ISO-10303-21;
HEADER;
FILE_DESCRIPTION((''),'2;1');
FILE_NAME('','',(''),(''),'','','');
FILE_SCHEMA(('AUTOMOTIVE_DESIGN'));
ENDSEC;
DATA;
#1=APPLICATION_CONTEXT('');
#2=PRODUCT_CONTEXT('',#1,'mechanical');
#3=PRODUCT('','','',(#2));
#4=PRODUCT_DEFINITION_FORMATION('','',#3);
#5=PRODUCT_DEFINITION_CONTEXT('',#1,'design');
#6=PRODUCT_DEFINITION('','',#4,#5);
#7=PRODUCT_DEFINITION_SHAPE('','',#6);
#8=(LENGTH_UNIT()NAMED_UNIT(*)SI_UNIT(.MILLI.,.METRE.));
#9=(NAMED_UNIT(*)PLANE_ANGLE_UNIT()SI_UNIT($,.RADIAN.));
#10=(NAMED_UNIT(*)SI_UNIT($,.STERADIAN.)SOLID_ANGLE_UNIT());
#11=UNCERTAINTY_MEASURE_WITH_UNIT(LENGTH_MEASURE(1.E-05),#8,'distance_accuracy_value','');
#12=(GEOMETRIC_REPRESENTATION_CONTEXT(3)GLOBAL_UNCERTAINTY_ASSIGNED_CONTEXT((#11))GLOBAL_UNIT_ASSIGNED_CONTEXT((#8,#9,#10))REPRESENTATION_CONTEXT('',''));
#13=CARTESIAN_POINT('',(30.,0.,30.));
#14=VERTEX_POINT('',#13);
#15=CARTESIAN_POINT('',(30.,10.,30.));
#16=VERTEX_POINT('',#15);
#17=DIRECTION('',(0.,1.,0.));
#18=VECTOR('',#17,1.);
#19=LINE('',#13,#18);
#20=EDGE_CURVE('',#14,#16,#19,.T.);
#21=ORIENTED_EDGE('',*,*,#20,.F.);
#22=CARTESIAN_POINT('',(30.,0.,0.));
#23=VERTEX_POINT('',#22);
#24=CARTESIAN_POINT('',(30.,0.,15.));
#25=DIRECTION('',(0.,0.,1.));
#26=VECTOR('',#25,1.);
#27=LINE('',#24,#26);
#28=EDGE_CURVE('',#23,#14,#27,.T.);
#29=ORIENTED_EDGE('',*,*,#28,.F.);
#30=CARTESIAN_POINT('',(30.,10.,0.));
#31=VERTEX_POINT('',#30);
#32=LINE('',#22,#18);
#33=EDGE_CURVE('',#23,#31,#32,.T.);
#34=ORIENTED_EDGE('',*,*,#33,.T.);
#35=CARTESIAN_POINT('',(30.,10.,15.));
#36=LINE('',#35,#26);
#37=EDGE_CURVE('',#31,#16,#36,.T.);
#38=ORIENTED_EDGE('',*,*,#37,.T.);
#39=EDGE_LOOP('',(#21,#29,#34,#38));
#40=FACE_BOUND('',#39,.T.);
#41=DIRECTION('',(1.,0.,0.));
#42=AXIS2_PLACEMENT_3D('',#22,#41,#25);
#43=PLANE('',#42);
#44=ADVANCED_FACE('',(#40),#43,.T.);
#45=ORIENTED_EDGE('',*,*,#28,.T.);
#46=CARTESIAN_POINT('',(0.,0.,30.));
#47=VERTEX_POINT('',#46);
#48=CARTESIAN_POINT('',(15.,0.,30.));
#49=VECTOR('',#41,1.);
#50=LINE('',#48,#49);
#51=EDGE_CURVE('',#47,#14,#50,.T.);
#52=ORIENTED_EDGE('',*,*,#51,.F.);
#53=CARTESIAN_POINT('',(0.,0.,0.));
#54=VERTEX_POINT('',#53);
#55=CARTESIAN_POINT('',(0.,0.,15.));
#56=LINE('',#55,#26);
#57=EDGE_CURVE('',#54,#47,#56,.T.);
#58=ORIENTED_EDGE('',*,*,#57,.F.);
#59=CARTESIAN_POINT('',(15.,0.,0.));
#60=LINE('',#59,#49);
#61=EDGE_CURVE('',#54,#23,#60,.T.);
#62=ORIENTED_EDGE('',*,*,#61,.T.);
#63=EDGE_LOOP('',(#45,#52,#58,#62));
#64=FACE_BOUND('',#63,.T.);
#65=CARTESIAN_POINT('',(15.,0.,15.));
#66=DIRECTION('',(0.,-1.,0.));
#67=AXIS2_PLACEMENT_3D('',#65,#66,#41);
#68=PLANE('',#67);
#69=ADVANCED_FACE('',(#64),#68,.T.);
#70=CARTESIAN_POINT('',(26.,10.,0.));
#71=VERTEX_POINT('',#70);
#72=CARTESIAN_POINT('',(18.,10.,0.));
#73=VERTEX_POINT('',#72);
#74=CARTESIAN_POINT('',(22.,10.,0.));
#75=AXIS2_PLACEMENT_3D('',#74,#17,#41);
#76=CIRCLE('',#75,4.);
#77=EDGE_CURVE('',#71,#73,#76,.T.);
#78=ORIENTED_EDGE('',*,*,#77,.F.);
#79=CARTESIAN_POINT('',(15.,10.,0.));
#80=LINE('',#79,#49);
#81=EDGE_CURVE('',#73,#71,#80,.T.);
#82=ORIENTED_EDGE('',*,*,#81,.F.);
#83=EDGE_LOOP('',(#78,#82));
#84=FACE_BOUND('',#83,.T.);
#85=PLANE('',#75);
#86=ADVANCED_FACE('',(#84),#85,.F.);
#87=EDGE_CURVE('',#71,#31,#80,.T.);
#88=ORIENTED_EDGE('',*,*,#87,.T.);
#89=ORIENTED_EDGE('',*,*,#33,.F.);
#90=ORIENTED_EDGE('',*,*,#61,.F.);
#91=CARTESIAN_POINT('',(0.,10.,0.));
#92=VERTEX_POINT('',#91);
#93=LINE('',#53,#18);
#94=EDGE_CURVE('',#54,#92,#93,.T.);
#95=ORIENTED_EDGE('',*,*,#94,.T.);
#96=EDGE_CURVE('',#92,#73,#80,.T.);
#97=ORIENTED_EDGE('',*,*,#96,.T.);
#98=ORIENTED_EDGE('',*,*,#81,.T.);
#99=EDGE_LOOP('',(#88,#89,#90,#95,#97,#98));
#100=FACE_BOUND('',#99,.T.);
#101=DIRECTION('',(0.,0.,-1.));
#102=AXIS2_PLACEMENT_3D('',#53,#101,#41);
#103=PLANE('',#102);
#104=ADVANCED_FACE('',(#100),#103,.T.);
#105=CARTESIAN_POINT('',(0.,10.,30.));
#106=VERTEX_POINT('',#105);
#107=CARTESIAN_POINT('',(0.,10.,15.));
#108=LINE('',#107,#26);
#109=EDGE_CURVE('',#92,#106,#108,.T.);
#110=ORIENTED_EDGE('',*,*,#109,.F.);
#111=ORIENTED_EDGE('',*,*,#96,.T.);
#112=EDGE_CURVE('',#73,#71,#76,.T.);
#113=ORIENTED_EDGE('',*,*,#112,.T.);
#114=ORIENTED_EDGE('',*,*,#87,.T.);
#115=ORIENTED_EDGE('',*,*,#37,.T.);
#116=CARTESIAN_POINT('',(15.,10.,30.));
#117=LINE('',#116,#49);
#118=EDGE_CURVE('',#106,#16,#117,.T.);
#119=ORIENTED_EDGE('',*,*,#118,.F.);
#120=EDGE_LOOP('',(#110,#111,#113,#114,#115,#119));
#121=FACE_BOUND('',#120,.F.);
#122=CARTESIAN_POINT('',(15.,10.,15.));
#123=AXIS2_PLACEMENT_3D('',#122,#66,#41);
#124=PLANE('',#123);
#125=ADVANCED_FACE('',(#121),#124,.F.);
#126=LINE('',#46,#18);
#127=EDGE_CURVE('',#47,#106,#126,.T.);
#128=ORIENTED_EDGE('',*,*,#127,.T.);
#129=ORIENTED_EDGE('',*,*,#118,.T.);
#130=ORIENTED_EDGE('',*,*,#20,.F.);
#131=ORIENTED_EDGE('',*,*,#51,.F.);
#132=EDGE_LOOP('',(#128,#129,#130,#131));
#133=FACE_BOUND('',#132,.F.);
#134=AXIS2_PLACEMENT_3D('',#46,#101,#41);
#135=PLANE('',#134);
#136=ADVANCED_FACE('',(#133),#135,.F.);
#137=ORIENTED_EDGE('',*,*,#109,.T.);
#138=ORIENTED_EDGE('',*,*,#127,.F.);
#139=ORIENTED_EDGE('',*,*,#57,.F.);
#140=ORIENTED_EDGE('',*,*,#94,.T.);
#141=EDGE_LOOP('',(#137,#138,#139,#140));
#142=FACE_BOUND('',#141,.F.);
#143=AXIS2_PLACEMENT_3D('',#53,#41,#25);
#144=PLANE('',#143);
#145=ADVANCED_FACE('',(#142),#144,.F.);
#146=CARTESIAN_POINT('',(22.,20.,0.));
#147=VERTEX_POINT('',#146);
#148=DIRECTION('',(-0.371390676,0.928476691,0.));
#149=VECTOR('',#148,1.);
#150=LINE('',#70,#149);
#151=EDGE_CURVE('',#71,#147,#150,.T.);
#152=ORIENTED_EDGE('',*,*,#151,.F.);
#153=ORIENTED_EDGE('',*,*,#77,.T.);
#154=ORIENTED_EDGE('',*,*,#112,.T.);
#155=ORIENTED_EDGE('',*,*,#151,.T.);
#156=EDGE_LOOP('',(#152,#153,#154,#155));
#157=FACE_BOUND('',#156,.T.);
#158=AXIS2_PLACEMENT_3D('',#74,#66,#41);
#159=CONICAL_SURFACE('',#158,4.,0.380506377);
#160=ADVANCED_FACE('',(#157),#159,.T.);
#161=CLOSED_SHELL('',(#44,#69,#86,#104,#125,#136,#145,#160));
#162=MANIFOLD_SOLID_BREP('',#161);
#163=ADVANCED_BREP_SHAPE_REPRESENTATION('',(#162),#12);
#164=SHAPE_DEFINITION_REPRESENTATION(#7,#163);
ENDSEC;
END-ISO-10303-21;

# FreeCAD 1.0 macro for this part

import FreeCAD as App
import Part
import Sketcher
from FreeCAD import Vector
Q = App.Units.Quantity

doc = App.newDocument("Part")
body = doc.addObject("PartDesign::Body", "Body")

# Sketch on XZ plane
sketch1 = doc.addObject("Sketcher::SketchObject", "Sketch")
body.addObject(sketch1)
sketch1.AttachmentSupport = (doc.XZ_Plane, [""])
sketch1.MapMode = "FlatFace"
sketch1.addGeometry([
    Part.LineSegment(Vector(0, 30, 0), Vector(0, 0, 0)),
    Part.LineSegment(Vector(0, 0, 0), Vector(30, 0, 0)),
    Part.LineSegment(Vector(30, 0, 0), Vector(30, 30, 0)),
    Part.LineSegment(Vector(30, 30, 0), Vector(0, 30, 0)),
], False)
sketch1.addConstraint([
    Sketcher.Constraint("Coincident", 0, 2, 1, 1),
    Sketcher.Constraint("Coincident", 1, 2, 2, 1),
    Sketcher.Constraint("Coincident", 2, 2, 3, 1),
    Sketcher.Constraint("Coincident", 3, 2, 0, 1),
    Sketcher.Constraint("Vertical", 0),
    Sketcher.Constraint("Horizontal", 1),
    Sketcher.Constraint("Vertical", 2),
    Sketcher.Constraint("Horizontal", 3),
    Sketcher.Constraint("Coincident", 0, 2, -1, 1),
    Sketcher.Constraint("Equal", 3, 0),
    Sketcher.Constraint("DistanceX", 1, 1, 1, 2, Q("30 mm")),
])
pad1 = doc.addObject("PartDesign::Pad", "Pad")
body.addObject(pad1)
pad1.Profile = sketch1
pad1.Length = 10
pad1.Reversed = True

# Sketch on XY plane
sketch2 = doc.addObject("Sketcher::SketchObject", "Sketch001")
body.addObject(sketch2)
sketch2.AttachmentSupport = (doc.XY_Plane, [""])
sketch2.MapMode = "FlatFace"
sketch2.addGeometry([
    Part.LineSegment(Vector(22, 20, 0), Vector(22, 10, 0)),
    Part.LineSegment(Vector(22, 10, 0), Vector(26, 10, 0)),
    Part.LineSegment(Vector(26, 10, 0), Vector(22, 20, 0)),
], False)
sketch2.addGeometry(Part.LineSegment(Vector(22, 10, 0), Vector(22, 20, 0)), True)  # axis
sketch2.addConstraint([
    Sketcher.Constraint("Coincident", 0, 2, 1, 1),
    Sketcher.Constraint("Coincident", 1, 2, 2, 1),
    Sketcher.Constraint("Coincident", 2, 2, 0, 1),
    Sketcher.Constraint("Vertical", 0),
    Sketcher.Constraint("Horizontal", 1),
    Sketcher.Constraint("Vertical", 3),
    Sketcher.Constraint("Coincident", 3, 1, 0, 2),
    Sketcher.Constraint("Equal", 0, 3),
    Sketcher.Constraint("DistanceX", 1, 1, 1, 2, Q("4 mm")),
    Sketcher.Constraint("DistanceY", 0, 2, 0, 1, Q("10 mm")),
    Sketcher.Constraint("DistanceX", -1, 1, 0, 2, Q("22 mm")),
    Sketcher.Constraint("DistanceY", -1, 1, 0, 2, Q("10 mm")),
])
revolution = doc.addObject("PartDesign::Revolution", "Revolution")
body.addObject(revolution)
revolution.Profile = sketch2
revolution.ReferenceAxis = (sketch2, ["Axis0"])
revolution.Angle = 360

doc.recompute()
